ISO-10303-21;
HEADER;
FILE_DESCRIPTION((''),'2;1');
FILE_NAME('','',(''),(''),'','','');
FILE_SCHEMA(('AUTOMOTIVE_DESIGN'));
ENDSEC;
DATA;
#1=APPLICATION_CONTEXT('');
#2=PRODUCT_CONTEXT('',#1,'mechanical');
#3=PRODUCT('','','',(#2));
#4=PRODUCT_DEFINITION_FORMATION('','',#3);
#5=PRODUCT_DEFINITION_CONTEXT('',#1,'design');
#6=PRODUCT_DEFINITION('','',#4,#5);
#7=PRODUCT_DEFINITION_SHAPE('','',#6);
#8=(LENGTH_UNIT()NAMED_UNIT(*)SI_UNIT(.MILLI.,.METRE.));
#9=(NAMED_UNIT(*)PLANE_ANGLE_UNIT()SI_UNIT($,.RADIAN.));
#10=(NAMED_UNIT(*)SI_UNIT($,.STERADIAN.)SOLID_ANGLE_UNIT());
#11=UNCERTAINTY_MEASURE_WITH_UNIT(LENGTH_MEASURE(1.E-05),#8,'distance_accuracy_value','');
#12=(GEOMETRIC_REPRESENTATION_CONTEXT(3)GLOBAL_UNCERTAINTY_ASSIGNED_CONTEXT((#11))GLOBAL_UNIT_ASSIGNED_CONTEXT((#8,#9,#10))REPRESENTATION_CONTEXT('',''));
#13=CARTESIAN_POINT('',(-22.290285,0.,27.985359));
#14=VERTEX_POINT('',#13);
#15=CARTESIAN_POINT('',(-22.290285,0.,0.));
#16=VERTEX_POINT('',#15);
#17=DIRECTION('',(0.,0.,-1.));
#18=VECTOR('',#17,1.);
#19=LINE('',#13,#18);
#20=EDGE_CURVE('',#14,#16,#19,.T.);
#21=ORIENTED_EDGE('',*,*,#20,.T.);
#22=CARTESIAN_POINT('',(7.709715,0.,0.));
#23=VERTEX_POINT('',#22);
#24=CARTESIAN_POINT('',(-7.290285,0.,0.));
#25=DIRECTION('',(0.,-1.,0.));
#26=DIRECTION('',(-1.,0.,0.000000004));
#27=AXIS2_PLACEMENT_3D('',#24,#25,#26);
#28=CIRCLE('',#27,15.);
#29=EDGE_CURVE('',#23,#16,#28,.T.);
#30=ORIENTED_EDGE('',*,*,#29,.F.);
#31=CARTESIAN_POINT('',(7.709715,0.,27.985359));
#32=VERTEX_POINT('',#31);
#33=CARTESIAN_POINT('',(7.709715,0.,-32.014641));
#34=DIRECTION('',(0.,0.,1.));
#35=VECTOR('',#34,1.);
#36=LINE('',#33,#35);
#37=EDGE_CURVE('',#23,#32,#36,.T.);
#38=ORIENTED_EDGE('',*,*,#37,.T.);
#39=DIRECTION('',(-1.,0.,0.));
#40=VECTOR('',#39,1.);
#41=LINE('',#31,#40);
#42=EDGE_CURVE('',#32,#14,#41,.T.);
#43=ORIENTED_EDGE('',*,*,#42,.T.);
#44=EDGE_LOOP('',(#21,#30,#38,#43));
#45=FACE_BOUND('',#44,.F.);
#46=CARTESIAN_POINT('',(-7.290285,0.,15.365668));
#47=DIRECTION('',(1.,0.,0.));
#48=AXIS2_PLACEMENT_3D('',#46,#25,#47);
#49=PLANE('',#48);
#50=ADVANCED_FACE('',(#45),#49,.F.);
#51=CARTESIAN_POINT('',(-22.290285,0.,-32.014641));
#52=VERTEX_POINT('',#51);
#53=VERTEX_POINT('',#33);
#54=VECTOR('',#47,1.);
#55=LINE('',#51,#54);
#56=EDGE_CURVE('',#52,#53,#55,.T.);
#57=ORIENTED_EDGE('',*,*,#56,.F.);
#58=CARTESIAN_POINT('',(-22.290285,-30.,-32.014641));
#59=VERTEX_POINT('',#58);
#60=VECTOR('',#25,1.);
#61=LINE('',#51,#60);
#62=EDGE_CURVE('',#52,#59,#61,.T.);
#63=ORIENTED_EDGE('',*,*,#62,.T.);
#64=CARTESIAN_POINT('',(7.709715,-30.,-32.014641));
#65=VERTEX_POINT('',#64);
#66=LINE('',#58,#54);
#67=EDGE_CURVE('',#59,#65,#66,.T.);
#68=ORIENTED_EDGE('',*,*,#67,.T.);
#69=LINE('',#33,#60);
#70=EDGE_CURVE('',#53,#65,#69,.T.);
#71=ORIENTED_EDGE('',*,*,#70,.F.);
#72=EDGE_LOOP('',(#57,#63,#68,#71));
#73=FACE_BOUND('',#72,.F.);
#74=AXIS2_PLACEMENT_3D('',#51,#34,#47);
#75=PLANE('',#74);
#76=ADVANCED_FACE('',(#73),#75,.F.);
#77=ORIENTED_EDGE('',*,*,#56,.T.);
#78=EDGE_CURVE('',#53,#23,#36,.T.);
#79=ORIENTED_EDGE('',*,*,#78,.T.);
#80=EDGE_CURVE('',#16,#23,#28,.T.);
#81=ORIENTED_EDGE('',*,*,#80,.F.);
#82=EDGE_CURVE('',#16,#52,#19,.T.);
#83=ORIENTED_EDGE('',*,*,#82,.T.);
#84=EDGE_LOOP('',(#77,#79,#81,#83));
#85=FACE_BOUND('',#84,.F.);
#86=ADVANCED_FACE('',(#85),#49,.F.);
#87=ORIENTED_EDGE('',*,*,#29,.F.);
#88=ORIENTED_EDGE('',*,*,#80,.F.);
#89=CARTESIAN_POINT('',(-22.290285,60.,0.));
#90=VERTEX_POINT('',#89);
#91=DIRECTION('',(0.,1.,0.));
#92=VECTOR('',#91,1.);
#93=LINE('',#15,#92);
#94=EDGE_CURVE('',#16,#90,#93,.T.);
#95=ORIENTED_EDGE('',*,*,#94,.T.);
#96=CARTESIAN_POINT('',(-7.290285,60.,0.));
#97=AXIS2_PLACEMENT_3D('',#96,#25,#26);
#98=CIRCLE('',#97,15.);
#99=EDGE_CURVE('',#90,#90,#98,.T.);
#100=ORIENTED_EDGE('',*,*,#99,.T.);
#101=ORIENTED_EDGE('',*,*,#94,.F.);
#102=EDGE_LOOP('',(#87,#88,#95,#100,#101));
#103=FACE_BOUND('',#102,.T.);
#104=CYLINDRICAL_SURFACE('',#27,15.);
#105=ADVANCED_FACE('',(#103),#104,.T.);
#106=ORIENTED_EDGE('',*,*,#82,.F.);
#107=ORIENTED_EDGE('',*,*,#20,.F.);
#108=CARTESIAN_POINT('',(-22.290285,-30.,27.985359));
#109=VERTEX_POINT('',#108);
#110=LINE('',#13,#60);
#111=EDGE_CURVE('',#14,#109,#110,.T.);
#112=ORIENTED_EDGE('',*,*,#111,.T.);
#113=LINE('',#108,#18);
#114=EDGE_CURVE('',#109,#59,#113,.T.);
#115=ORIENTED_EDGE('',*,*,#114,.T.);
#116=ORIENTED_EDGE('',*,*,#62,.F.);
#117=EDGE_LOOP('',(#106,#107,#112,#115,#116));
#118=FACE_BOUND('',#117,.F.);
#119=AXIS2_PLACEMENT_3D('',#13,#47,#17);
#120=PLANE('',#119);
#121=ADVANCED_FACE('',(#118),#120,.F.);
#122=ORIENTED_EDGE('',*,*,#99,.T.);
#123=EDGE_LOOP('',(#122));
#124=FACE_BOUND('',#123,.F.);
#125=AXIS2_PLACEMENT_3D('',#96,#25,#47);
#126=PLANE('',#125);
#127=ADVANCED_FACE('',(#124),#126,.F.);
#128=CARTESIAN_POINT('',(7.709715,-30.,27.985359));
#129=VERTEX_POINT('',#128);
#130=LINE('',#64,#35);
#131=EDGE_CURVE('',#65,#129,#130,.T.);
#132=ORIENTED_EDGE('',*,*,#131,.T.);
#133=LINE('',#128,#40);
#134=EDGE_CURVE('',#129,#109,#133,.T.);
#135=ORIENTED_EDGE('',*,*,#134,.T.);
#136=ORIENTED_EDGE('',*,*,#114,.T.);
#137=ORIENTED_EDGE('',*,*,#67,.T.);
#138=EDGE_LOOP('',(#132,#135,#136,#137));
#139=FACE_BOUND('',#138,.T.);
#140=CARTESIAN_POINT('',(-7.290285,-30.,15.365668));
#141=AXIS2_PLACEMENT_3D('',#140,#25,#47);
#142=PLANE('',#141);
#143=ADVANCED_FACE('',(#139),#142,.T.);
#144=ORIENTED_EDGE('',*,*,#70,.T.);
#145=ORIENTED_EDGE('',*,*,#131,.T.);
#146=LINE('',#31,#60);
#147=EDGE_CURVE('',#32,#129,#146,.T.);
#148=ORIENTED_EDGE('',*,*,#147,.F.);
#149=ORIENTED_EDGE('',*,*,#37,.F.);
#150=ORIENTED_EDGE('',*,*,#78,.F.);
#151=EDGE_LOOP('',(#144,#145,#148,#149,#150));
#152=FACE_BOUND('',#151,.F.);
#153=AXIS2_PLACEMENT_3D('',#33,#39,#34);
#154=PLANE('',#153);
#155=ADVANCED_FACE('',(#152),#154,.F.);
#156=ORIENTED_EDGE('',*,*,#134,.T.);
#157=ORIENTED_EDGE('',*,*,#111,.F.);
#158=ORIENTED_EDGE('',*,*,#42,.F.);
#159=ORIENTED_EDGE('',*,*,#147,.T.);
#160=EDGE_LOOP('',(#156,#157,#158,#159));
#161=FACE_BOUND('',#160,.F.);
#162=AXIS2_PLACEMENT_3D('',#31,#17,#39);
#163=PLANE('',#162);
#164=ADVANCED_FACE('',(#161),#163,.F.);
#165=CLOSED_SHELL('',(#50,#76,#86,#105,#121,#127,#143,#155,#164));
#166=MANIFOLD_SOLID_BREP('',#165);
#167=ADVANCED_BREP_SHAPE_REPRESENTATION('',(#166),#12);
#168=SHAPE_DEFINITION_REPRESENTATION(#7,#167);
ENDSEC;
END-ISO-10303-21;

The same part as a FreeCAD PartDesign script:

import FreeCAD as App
import Part
import Sketcher
from FreeCAD import Vector


def add_polygon(sketch, points):
    """Adds a closed chain of lines whose ends are joined by coincident constraints."""
    first, n = sketch.GeometryCount, len(points)
    for a, b in zip(points, points[1:] + points[:1]):
        sketch.addGeometry(Part.LineSegment(App.Vector(*a, 0), App.Vector(*b, 0)), False)
    for i in range(n):
        sketch.addConstraint(Sketcher.Constraint("Coincident", first + i, 2, first + (i + 1) % n, 1))

doc = App.newDocument("Part")
params = doc.addObject("Spreadsheet::Sheet", "Params")
for row, (alias, value) in enumerate([
    ("sketch1_width", "30 mm"),
    ("sketch1_height", "60 mm"),
    ("pad1_length", "30 mm"),
    ("sketch2_diameter", "30 mm"),
    ("pad2_length", "60 mm"),
], start=1):
    params.set(f"A{row}", alias)
    params.set(f"B{row}", "=" + value)
    params.setAlias(f"B{row}", alias)

body = doc.addObject("PartDesign::Body", "Body")

# Sketch on XZ plane
sketch1 = body.newObject("Sketcher::SketchObject", "Sketch")
sketch1.AttachmentSupport = (doc.getObject("XZ_Plane"), [""])
sketch1.MapMode = "FlatFace"
add_polygon(sketch1, [(8, 28), (-22, 28), (-22, -32), (8, -32)])  # lines 0-3
sketch1.addConstraint(Sketcher.Constraint("Horizontal", 0))
sketch1.addConstraint(Sketcher.Constraint("Vertical", 1))
sketch1.addConstraint(Sketcher.Constraint("Horizontal", 2))
sketch1.addConstraint(Sketcher.Constraint("Vertical", 3))
sketch1.addConstraint(Sketcher.Constraint("DistanceX", 0, 2, 0, 1, 30.0))
sketch1.addConstraint(Sketcher.Constraint("DistanceY", 1, 2, 1, 1, 60.0))
sketch1.addConstraint(Sketcher.Constraint("DistanceY", -1, 1, 0, 2, 27.985359))
sketch1.addConstraint(Sketcher.Constraint("DistanceX", 0, 2, -1, 1, 22.290285))
sketch1.setExpression("Constraints[8]", "Params.sketch1_width")
sketch1.setExpression("Constraints[9]", "Params.sketch1_height")
pad1 = body.newObject("PartDesign::Pad", "Pad")
pad1.Profile = sketch1
pad1.setExpression("Length", "Params.pad1_length")

# Sketch on XZ plane
sketch2 = body.newObject("Sketcher::SketchObject", "Sketch001")
sketch2.AttachmentSupport = (doc.getObject("XZ_Plane"), [""])
sketch2.MapMode = "FlatFace"
sketch2.addGeometry(Part.Circle(Vector(-7, 0, 0), Vector(0, 0, 1), 15), False)
sketch2.addConstraint(Sketcher.Constraint("PointOnObject", 0, 3, -1))
sketch2.addConstraint(Sketcher.Constraint("Diameter", 0, 30.0))
sketch2.addConstraint(Sketcher.Constraint("DistanceX", 0, 3, -1, 1, 7.290285))
sketch2.setExpression("Constraints[1]", "Params.sketch2_diameter")
pad2 = body.newObject("PartDesign::Pad", "Pad001")
pad2.Profile = sketch2
pad2.setExpression("Length", "Params.pad2_length")
pad2.Reversed = True

doc.recompute()
